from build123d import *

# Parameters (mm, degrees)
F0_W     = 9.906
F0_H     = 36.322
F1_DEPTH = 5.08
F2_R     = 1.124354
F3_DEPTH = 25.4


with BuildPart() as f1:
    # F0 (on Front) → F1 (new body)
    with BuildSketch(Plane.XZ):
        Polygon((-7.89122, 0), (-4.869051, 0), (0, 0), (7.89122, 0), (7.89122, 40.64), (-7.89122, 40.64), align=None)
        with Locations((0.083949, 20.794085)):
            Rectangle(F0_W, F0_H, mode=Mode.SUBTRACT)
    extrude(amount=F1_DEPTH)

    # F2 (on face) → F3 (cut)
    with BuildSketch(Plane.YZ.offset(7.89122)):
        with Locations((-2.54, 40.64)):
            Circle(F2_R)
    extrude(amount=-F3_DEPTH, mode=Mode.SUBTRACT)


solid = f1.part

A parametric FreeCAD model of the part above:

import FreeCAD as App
import Part
import Sketcher
Q = App.Units.Quantity

doc = App.newDocument("Part")
body = doc.addObject("PartDesign::Body", "Body")

# Sketch on XZ plane
sketch1 = doc.addObject("Sketcher::SketchObject", "Sketch")
body.addObject(sketch1)
sketch1.AttachmentSupport = (doc.XZ_Plane, [""])
sketch1.MapMode = "FlatFace"
sketch1.addGeometry([
    Part.LineSegment(App.Vector(-8, 0, 0), App.Vector(8, 0, 0)),  # 0
    Part.LineSegment(App.Vector(8, 0, 0), App.Vector(8, 41, 0)),  # 1
    Part.LineSegment(App.Vector(8, 41, 0), App.Vector(-8, 41, 0)),  # 2
    Part.LineSegment(App.Vector(-8, 41, 0), App.Vector(-8, 0, 0)),  # 3
    Part.LineSegment(App.Vector(5, 3, 0), App.Vector(-5, 3, 0)),  # 4
    Part.LineSegment(App.Vector(-5, 3, 0), App.Vector(-5, 39, 0)),  # 5
    Part.LineSegment(App.Vector(-5, 39, 0), App.Vector(5, 39, 0)),  # 6
    Part.LineSegment(App.Vector(5, 39, 0), App.Vector(5, 3, 0)),  # 7
], False)
sketch1.addConstraint([
    Sketcher.Constraint("Coincident", 0, 2, 1, 1),
    Sketcher.Constraint("Coincident", 1, 2, 2, 1),
    Sketcher.Constraint("Coincident", 2, 2, 3, 1),
    Sketcher.Constraint("Coincident", 3, 2, 0, 1),
    Sketcher.Constraint("Coincident", 4, 2, 5, 1),
    Sketcher.Constraint("Coincident", 5, 2, 6, 1),
    Sketcher.Constraint("Coincident", 6, 2, 7, 1),
    Sketcher.Constraint("Coincident", 7, 2, 4, 1),
    Sketcher.Constraint("Horizontal", 0),
    Sketcher.Constraint("Vertical", 1),
    Sketcher.Constraint("Horizontal", 2),
    Sketcher.Constraint("Vertical", 3),
    Sketcher.Constraint("Horizontal", 4),
    Sketcher.Constraint("Vertical", 5),
    Sketcher.Constraint("Horizontal", 6),
    Sketcher.Constraint("Vertical", 7),
    Sketcher.Constraint("Symmetric", 0, 2, 3, 2, -1, 1),
    Sketcher.Constraint("DistanceY", 1, 1, 1, 2, Q("1.6 in")),
    Sketcher.Constraint("DistanceX", 4, 2, 4, 1, Q("0.39 in")),
    Sketcher.Constraint("DistanceY", 5, 1, 5, 2, Q("1.43 in")),
    Sketcher.Constraint("DistanceX", 0, 1, 0, 2, 15.78244),
    Sketcher.Constraint("DistanceX", 4, 2, -1, 1, 4.869051),
    Sketcher.Constraint("DistanceY", -1, 1, 4, 2, 2.633085),
])
pad1 = doc.addObject("PartDesign::Pad", "Pad")
body.addObject(pad1)
pad1.Profile = sketch1
pad1.Length = Q("0.2 in")

# Sketch on YZ plane
sketch2 = doc.addObject("Sketcher::SketchObject", "Sketch001")
body.addObject(sketch2)
sketch2.AttachmentSupport = (doc.YZ_Plane, [""])
sketch2.MapMode = "FlatFace"
sketch2.AttachmentOffset = App.Placement(App.Vector(0, 0, 7.89122), App.Rotation())
sketch2.addGeometry(Part.Circle(App.Vector(-2.5, 40.6, 0), App.Vector(0, 0, 1), 1.1), False)
sketch2.addConstraint([
    Sketcher.Constraint("DistanceX", 0, 3, -1, 1, Q("0.1 in")),
    Sketcher.Constraint("DistanceY", -1, 1, 0, 3, Q("1.6 in")),
    Sketcher.Constraint("Diameter", 0, 2.248708),
])
pocket1 = doc.addObject("PartDesign::Pocket", "Pocket")
body.addObject(pocket1)
pocket1.Profile = sketch2
pocket1.Length = Q("1 in")

doc.recompute()
